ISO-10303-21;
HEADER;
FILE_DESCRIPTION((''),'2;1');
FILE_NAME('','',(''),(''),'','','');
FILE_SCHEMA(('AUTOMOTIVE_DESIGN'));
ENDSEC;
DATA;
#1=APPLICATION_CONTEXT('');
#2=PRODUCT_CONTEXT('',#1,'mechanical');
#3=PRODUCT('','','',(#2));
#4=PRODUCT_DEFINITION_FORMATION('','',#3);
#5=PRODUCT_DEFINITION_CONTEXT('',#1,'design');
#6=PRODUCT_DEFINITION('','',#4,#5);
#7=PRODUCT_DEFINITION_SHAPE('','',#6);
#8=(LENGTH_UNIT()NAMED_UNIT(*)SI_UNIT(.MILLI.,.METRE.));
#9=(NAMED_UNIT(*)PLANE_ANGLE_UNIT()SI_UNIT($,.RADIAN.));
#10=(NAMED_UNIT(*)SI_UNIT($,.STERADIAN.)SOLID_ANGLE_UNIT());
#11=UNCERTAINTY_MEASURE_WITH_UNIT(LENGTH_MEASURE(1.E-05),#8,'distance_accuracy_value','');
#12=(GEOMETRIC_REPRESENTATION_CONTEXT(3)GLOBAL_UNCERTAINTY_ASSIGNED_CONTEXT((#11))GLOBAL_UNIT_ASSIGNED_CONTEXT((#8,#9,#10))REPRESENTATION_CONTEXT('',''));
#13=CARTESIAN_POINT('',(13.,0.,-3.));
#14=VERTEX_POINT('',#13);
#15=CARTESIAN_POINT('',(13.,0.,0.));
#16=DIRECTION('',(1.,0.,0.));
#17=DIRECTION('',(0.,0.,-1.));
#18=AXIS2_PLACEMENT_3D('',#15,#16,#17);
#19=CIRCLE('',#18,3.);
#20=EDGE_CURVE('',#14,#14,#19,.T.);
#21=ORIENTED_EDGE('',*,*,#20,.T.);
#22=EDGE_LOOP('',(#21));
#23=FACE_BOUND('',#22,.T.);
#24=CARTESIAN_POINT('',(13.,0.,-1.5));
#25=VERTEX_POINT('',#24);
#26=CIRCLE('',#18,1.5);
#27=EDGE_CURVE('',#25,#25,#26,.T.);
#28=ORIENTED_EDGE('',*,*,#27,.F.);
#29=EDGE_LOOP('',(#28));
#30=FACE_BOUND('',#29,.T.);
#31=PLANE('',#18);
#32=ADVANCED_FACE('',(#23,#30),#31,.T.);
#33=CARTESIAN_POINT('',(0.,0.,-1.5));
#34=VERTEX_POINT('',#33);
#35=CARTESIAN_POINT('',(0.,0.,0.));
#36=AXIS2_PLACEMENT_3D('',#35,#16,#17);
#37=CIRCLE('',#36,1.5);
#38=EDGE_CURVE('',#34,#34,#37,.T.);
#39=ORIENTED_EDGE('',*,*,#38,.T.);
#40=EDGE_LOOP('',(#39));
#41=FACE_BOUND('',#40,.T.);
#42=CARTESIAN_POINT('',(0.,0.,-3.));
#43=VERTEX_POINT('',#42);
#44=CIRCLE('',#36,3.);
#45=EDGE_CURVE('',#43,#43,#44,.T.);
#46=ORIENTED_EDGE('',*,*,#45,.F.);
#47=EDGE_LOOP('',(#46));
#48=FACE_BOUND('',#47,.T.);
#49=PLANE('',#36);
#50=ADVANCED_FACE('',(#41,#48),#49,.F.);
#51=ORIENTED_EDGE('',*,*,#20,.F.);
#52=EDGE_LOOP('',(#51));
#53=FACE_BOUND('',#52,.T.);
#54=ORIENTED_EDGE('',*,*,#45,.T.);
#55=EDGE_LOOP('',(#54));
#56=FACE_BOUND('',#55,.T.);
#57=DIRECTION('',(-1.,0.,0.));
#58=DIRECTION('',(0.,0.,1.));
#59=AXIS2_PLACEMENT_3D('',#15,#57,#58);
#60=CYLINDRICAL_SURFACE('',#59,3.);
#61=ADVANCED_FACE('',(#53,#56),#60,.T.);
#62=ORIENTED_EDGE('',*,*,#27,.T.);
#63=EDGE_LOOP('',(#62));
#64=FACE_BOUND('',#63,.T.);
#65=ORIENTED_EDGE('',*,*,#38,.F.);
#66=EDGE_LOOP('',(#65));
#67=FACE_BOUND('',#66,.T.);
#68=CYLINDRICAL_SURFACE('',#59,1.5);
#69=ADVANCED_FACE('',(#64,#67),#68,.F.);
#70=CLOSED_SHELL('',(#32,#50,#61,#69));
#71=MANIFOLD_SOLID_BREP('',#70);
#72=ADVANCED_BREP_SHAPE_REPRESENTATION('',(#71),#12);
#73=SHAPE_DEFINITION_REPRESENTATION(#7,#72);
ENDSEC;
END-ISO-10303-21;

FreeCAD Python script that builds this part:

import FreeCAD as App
import Part
import Sketcher

V = App.Vector

doc = App.newDocument("Part")
params = doc.addObject("Spreadsheet::Sheet", "Params")
for row, (alias, value) in enumerate([
    ("sketch1_diameter", "6 mm"),
    ("sketch1_diameter2", "3 mm"),
    ("pad1_length", "13 mm"),
], start=1):
    params.set(f"A{row}", alias)
    params.set(f"B{row}", "=" + value)
    params.setAlias(f"B{row}", alias)

body = doc.addObject("PartDesign::Body", "Body")

sketch1 = body.newObject("Sketcher::SketchObject", "Sketch")
sketch1.AttachmentSupport = (doc.getObject("YZ_Plane"), [""])
sketch1.MapMode = "FlatFace"
sketch1.addGeometry([
    Part.Circle(V(0, 0, 0), V(0, 0, 1), 3),
    Part.Circle(V(0, 0, 0), V(0, 0, 1), 1.5),
], False)
sketch1.addConstraint([
    Sketcher.Constraint("Coincident", 0, 3, -1, 1),
    Sketcher.Constraint("Coincident", 1, 3, -1, 1),
    Sketcher.Constraint("Diameter", 0, 6.0),
    Sketcher.Constraint("Diameter", 1, 3.0),
])
sketch1.setExpression("Constraints[2]", "Params.sketch1_diameter")
sketch1.setExpression("Constraints[3]", "Params.sketch1_diameter2")
pad1 = body.newObject("PartDesign::Pad", "Pad")
pad1.Profile = sketch1
pad1.setExpression("Length", "Params.pad1_length")

doc.recompute()
